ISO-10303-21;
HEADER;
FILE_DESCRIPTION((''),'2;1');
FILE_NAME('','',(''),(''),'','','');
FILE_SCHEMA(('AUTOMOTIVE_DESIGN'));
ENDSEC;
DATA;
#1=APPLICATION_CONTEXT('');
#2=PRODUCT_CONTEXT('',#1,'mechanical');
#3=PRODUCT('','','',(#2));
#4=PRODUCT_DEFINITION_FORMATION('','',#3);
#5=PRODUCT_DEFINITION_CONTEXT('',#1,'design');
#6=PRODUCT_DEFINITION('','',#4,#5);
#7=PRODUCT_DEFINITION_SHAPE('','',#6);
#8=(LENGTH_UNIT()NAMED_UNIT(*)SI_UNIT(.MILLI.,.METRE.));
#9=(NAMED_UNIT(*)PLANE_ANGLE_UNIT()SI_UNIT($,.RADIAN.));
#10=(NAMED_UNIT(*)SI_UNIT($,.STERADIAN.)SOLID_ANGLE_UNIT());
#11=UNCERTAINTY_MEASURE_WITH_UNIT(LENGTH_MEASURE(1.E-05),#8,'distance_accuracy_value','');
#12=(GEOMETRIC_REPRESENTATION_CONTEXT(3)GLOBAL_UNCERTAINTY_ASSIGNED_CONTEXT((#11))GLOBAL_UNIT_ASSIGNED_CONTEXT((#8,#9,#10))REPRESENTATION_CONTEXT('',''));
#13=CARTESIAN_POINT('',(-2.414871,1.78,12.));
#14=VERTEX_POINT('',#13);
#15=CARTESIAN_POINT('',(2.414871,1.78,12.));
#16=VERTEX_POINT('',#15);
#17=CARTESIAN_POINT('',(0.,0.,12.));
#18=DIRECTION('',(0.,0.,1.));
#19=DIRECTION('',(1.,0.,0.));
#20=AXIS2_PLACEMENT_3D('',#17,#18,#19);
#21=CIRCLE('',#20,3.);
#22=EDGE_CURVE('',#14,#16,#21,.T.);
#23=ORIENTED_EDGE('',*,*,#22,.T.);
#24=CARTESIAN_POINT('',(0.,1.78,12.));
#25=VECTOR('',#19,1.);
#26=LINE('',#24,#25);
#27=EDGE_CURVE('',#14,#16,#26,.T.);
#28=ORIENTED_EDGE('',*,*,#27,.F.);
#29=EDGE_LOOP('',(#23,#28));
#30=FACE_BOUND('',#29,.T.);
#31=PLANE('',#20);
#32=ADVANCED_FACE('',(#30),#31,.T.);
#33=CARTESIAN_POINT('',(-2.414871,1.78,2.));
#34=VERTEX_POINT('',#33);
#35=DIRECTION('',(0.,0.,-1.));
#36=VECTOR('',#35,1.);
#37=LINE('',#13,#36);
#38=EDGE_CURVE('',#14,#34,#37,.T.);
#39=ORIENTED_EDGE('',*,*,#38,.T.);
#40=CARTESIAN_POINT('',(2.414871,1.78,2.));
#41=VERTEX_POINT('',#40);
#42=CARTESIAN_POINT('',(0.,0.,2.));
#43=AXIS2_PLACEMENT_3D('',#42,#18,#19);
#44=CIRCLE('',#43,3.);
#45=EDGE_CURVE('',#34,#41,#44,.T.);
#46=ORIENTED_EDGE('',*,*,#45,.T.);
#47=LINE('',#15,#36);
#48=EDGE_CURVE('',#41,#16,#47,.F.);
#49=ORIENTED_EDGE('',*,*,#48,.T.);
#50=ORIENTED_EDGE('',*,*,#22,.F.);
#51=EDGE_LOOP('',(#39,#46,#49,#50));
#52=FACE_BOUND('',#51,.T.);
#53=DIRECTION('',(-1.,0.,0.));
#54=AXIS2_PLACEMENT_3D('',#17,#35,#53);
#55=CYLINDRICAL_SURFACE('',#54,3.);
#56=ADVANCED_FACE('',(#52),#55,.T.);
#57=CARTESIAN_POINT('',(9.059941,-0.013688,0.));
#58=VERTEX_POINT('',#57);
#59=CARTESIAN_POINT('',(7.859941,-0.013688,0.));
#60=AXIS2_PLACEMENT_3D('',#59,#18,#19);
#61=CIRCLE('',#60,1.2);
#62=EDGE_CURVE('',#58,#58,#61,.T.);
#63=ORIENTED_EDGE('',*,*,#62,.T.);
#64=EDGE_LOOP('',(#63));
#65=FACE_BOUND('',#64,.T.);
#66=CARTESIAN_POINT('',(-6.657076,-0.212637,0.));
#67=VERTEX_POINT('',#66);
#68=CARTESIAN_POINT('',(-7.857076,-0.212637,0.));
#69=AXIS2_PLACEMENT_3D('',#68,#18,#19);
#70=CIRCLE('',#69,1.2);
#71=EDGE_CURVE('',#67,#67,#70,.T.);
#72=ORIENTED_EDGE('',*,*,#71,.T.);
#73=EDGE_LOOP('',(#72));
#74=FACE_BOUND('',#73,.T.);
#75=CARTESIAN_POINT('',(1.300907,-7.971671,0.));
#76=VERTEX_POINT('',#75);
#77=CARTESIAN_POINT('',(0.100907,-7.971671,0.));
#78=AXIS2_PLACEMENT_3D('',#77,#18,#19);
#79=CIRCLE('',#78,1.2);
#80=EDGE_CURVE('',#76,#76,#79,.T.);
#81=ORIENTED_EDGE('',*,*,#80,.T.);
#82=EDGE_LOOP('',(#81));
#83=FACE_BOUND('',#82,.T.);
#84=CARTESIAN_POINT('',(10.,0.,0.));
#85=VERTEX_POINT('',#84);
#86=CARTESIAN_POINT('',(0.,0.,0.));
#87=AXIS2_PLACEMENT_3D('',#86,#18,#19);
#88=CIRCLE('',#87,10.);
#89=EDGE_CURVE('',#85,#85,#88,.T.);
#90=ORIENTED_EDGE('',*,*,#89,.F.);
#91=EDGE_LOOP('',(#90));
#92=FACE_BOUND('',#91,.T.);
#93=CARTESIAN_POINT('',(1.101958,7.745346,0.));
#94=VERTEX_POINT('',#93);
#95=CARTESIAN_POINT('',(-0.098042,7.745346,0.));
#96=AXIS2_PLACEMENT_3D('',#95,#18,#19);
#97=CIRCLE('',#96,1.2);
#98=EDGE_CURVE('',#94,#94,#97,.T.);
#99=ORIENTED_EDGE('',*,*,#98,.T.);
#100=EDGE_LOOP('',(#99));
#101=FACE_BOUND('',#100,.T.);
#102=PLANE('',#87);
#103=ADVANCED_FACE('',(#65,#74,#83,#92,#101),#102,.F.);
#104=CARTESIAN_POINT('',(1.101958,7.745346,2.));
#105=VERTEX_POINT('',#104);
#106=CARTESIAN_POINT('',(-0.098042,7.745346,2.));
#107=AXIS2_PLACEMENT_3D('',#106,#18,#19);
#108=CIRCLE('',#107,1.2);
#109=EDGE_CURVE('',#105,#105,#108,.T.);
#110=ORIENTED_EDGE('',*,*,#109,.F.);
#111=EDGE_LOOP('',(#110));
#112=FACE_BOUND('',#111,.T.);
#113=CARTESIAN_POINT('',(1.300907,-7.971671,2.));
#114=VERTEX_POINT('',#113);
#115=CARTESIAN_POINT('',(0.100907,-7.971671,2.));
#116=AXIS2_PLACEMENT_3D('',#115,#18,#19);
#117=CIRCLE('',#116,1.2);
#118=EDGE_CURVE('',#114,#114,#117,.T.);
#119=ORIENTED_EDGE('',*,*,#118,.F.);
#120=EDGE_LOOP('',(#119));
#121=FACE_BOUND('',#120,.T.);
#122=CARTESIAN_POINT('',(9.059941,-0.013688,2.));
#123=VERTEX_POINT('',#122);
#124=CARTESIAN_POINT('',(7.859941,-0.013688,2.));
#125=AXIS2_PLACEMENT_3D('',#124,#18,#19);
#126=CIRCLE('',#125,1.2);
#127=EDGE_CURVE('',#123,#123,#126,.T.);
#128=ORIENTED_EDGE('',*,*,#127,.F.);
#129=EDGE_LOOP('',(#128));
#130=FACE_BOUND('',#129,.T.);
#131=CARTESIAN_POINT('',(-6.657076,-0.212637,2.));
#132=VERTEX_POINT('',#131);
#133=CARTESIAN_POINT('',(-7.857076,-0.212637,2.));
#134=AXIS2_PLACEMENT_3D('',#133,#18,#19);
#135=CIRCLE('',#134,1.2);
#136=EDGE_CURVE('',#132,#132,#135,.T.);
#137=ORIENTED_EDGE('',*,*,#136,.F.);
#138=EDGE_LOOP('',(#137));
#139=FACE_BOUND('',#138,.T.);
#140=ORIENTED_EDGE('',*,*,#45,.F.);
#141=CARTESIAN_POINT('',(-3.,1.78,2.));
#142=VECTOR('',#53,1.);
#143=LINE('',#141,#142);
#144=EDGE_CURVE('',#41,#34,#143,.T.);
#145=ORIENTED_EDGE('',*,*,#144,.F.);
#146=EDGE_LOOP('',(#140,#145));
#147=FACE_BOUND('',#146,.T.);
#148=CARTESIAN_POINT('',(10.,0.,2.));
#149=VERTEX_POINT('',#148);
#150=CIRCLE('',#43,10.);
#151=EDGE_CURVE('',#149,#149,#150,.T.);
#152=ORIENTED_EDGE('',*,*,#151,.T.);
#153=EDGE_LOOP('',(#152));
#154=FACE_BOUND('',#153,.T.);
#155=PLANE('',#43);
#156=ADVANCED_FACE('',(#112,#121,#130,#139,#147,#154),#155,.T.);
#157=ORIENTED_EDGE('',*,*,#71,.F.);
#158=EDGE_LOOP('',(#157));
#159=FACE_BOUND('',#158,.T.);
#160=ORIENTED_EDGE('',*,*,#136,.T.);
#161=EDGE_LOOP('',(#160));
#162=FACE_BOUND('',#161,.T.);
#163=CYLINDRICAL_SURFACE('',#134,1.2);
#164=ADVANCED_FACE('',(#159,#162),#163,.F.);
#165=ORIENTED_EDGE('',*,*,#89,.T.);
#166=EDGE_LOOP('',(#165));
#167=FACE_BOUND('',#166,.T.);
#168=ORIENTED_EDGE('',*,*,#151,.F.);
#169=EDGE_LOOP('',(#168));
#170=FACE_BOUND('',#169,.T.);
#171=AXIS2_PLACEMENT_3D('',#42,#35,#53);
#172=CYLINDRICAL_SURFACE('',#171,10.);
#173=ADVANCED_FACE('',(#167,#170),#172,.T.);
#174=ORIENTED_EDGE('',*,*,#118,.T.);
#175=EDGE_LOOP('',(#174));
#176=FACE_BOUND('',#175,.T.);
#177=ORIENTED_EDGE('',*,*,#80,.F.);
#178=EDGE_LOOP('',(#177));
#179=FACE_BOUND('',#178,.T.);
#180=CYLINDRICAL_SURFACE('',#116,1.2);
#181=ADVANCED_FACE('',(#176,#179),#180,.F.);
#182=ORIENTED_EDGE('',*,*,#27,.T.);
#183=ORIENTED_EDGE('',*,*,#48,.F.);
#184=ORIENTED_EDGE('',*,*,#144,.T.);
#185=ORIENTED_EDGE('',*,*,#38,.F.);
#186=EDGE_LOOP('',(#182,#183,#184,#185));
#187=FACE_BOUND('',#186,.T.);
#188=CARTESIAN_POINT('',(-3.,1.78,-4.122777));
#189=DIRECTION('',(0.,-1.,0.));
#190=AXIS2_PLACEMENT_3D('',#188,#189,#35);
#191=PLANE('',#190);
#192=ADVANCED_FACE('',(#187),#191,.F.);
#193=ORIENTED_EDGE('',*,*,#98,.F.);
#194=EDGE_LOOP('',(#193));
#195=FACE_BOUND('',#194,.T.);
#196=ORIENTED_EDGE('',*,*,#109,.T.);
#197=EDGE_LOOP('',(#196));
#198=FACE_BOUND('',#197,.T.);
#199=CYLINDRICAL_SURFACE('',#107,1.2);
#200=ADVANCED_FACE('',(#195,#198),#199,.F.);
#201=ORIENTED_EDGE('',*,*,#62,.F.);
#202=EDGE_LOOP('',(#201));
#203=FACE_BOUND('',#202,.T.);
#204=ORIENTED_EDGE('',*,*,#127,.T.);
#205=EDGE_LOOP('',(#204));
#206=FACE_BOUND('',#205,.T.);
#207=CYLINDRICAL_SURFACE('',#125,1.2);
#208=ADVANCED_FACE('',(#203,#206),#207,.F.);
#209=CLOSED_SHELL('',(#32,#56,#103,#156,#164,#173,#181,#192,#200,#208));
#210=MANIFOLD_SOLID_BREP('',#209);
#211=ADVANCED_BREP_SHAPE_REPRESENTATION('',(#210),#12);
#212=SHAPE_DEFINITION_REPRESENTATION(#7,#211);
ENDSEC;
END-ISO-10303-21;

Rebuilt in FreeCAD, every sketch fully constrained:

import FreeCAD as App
import Part
import Sketcher

doc = App.newDocument("Part")
body = doc.addObject("PartDesign::Body", "Body")

sketch1 = doc.addObject("Sketcher::SketchObject", "Sketch")
body.addObject(sketch1)
sketch1.AttachmentSupport = (doc.XY_Plane, [""])
sketch1.MapMode = "FlatFace"
sketch1.addGeometry(Part.Circle(App.Vector(0, 0, 0), App.Vector(0, 0, 1), 10), False)
sketch1.addConstraint([
    Sketcher.Constraint("Coincident", 0, 3, -1, 1),
    Sketcher.Constraint("Diameter", 0, 20.0),
])
pad1 = doc.addObject("PartDesign::Pad", "Pad")
body.addObject(pad1)
pad1.Profile = sketch1
pad1.Length = 2

sketch2 = doc.addObject("Sketcher::SketchObject", "Sketch001")
body.addObject(sketch2)
sketch2.AttachmentSupport = (doc.XY_Plane, [""])
sketch2.MapMode = "FlatFace"
sketch2.AttachmentOffset = App.Placement(App.Vector(0, 0, 2), App.Rotation())
sketch2.addGeometry(Part.Circle(App.Vector(-0.098042, 7.745346, 0), App.Vector(0, 0, 1), 1.2), False)
sketch2.addConstraint([
    Sketcher.Constraint("Diameter", 0, 2.4),
    Sketcher.Constraint("DistanceX", 0, 3, -1, 1, 0.098042),
    Sketcher.Constraint("DistanceY", -1, 1, 0, 3, 7.745346),
])
doc.recompute()
hole = doc.addObject("PartDesign::Hole", "Hole")
body.addObject(hole)
hole.Profile = sketch2
hole.ThreadType = "None"
hole.Diameter = 2.4
hole.DepthType = "ThroughAll"
doc.recompute()

datumline = doc.addObject("PartDesign::Line", "DatumLine")
body.addObject(datumline)
datumline.Placement = App.Placement(App.Vector(0.001432, -0.113163, 0), App.Rotation(App.Vector(0, 0, 1), App.Vector(0, 0, 1)))
polarpattern = doc.addObject("PartDesign::PolarPattern", "PolarPattern")
body.addObject(polarpattern)
polarpattern.Originals = [hole]
polarpattern.Axis = (datumline, [""])
polarpattern.Angle = 360
polarpattern.Occurrences = 4
body.Tip = polarpattern

sketch3 = doc.addObject("Sketcher::SketchObject", "Sketch002")
body.addObject(sketch3)
sketch3.AttachmentSupport = (doc.XY_Plane, [""])
sketch3.MapMode = "FlatFace"
sketch3.AttachmentOffset = App.Placement(App.Vector(0, 0, 2), App.Rotation())
sketch3.addGeometry(Part.Circle(App.Vector(0, 0, 0), App.Vector(0, 0, 1), 3), False)
sketch3.addConstraint([
    Sketcher.Constraint("Coincident", 0, 3, -1, 1),
    Sketcher.Constraint("Diameter", 0, 6.0),
])
pad2 = doc.addObject("PartDesign::Pad", "Pad001")
body.addObject(pad2)
pad2.Profile = sketch3
pad2.Length = 10

sketch4 = doc.addObject("Sketcher::SketchObject", "Sketch003")
body.addObject(sketch4)
sketch4.AttachmentSupport = (doc.XY_Plane, [""])
sketch4.MapMode = "FlatFace"
sketch4.AttachmentOffset = App.Placement(App.Vector(0, 0, 12), App.Rotation())
sketch4.addGeometry([
    Part.LineSegment(App.Vector(-3, 3, 0), App.Vector(-3, 1.78, 0)),
    Part.LineSegment(App.Vector(-3, 1.78, 0), App.Vector(3, 1.78, 0)),
    Part.LineSegment(App.Vector(3, 1.78, 0), App.Vector(3, 3, 0)),
    Part.LineSegment(App.Vector(3, 3, 0), App.Vector(-3, 3, 0)),
], False)
sketch4.addConstraint([
    Sketcher.Constraint("Coincident", 0, 2, 1, 1),
    Sketcher.Constraint("Coincident", 1, 2, 2, 1),
    Sketcher.Constraint("Coincident", 2, 2, 3, 1),
    Sketcher.Constraint("Coincident", 3, 2, 0, 1),
    Sketcher.Constraint("Vertical", 0),
    Sketcher.Constraint("Horizontal", 1),
    Sketcher.Constraint("Vertical", 2),
    Sketcher.Constraint("Horizontal", 3),
    Sketcher.Constraint("DistanceX", 1, 1, 1, 2, 6.0),
    Sketcher.Constraint("DistanceX", 0, 2, -1, 1, 3.0),
    Sketcher.Constraint("DistanceY", -1, 1, 2, 2, 3.0),
    Sketcher.Constraint("DistanceY", 0, 2, 0, 1, 1.22),
])
pocket1 = doc.addObject("PartDesign::Pocket", "Pocket")
body.addObject(pocket1)
pocket1.Profile = sketch4
pocket1.Length = 10

doc.recompute()
